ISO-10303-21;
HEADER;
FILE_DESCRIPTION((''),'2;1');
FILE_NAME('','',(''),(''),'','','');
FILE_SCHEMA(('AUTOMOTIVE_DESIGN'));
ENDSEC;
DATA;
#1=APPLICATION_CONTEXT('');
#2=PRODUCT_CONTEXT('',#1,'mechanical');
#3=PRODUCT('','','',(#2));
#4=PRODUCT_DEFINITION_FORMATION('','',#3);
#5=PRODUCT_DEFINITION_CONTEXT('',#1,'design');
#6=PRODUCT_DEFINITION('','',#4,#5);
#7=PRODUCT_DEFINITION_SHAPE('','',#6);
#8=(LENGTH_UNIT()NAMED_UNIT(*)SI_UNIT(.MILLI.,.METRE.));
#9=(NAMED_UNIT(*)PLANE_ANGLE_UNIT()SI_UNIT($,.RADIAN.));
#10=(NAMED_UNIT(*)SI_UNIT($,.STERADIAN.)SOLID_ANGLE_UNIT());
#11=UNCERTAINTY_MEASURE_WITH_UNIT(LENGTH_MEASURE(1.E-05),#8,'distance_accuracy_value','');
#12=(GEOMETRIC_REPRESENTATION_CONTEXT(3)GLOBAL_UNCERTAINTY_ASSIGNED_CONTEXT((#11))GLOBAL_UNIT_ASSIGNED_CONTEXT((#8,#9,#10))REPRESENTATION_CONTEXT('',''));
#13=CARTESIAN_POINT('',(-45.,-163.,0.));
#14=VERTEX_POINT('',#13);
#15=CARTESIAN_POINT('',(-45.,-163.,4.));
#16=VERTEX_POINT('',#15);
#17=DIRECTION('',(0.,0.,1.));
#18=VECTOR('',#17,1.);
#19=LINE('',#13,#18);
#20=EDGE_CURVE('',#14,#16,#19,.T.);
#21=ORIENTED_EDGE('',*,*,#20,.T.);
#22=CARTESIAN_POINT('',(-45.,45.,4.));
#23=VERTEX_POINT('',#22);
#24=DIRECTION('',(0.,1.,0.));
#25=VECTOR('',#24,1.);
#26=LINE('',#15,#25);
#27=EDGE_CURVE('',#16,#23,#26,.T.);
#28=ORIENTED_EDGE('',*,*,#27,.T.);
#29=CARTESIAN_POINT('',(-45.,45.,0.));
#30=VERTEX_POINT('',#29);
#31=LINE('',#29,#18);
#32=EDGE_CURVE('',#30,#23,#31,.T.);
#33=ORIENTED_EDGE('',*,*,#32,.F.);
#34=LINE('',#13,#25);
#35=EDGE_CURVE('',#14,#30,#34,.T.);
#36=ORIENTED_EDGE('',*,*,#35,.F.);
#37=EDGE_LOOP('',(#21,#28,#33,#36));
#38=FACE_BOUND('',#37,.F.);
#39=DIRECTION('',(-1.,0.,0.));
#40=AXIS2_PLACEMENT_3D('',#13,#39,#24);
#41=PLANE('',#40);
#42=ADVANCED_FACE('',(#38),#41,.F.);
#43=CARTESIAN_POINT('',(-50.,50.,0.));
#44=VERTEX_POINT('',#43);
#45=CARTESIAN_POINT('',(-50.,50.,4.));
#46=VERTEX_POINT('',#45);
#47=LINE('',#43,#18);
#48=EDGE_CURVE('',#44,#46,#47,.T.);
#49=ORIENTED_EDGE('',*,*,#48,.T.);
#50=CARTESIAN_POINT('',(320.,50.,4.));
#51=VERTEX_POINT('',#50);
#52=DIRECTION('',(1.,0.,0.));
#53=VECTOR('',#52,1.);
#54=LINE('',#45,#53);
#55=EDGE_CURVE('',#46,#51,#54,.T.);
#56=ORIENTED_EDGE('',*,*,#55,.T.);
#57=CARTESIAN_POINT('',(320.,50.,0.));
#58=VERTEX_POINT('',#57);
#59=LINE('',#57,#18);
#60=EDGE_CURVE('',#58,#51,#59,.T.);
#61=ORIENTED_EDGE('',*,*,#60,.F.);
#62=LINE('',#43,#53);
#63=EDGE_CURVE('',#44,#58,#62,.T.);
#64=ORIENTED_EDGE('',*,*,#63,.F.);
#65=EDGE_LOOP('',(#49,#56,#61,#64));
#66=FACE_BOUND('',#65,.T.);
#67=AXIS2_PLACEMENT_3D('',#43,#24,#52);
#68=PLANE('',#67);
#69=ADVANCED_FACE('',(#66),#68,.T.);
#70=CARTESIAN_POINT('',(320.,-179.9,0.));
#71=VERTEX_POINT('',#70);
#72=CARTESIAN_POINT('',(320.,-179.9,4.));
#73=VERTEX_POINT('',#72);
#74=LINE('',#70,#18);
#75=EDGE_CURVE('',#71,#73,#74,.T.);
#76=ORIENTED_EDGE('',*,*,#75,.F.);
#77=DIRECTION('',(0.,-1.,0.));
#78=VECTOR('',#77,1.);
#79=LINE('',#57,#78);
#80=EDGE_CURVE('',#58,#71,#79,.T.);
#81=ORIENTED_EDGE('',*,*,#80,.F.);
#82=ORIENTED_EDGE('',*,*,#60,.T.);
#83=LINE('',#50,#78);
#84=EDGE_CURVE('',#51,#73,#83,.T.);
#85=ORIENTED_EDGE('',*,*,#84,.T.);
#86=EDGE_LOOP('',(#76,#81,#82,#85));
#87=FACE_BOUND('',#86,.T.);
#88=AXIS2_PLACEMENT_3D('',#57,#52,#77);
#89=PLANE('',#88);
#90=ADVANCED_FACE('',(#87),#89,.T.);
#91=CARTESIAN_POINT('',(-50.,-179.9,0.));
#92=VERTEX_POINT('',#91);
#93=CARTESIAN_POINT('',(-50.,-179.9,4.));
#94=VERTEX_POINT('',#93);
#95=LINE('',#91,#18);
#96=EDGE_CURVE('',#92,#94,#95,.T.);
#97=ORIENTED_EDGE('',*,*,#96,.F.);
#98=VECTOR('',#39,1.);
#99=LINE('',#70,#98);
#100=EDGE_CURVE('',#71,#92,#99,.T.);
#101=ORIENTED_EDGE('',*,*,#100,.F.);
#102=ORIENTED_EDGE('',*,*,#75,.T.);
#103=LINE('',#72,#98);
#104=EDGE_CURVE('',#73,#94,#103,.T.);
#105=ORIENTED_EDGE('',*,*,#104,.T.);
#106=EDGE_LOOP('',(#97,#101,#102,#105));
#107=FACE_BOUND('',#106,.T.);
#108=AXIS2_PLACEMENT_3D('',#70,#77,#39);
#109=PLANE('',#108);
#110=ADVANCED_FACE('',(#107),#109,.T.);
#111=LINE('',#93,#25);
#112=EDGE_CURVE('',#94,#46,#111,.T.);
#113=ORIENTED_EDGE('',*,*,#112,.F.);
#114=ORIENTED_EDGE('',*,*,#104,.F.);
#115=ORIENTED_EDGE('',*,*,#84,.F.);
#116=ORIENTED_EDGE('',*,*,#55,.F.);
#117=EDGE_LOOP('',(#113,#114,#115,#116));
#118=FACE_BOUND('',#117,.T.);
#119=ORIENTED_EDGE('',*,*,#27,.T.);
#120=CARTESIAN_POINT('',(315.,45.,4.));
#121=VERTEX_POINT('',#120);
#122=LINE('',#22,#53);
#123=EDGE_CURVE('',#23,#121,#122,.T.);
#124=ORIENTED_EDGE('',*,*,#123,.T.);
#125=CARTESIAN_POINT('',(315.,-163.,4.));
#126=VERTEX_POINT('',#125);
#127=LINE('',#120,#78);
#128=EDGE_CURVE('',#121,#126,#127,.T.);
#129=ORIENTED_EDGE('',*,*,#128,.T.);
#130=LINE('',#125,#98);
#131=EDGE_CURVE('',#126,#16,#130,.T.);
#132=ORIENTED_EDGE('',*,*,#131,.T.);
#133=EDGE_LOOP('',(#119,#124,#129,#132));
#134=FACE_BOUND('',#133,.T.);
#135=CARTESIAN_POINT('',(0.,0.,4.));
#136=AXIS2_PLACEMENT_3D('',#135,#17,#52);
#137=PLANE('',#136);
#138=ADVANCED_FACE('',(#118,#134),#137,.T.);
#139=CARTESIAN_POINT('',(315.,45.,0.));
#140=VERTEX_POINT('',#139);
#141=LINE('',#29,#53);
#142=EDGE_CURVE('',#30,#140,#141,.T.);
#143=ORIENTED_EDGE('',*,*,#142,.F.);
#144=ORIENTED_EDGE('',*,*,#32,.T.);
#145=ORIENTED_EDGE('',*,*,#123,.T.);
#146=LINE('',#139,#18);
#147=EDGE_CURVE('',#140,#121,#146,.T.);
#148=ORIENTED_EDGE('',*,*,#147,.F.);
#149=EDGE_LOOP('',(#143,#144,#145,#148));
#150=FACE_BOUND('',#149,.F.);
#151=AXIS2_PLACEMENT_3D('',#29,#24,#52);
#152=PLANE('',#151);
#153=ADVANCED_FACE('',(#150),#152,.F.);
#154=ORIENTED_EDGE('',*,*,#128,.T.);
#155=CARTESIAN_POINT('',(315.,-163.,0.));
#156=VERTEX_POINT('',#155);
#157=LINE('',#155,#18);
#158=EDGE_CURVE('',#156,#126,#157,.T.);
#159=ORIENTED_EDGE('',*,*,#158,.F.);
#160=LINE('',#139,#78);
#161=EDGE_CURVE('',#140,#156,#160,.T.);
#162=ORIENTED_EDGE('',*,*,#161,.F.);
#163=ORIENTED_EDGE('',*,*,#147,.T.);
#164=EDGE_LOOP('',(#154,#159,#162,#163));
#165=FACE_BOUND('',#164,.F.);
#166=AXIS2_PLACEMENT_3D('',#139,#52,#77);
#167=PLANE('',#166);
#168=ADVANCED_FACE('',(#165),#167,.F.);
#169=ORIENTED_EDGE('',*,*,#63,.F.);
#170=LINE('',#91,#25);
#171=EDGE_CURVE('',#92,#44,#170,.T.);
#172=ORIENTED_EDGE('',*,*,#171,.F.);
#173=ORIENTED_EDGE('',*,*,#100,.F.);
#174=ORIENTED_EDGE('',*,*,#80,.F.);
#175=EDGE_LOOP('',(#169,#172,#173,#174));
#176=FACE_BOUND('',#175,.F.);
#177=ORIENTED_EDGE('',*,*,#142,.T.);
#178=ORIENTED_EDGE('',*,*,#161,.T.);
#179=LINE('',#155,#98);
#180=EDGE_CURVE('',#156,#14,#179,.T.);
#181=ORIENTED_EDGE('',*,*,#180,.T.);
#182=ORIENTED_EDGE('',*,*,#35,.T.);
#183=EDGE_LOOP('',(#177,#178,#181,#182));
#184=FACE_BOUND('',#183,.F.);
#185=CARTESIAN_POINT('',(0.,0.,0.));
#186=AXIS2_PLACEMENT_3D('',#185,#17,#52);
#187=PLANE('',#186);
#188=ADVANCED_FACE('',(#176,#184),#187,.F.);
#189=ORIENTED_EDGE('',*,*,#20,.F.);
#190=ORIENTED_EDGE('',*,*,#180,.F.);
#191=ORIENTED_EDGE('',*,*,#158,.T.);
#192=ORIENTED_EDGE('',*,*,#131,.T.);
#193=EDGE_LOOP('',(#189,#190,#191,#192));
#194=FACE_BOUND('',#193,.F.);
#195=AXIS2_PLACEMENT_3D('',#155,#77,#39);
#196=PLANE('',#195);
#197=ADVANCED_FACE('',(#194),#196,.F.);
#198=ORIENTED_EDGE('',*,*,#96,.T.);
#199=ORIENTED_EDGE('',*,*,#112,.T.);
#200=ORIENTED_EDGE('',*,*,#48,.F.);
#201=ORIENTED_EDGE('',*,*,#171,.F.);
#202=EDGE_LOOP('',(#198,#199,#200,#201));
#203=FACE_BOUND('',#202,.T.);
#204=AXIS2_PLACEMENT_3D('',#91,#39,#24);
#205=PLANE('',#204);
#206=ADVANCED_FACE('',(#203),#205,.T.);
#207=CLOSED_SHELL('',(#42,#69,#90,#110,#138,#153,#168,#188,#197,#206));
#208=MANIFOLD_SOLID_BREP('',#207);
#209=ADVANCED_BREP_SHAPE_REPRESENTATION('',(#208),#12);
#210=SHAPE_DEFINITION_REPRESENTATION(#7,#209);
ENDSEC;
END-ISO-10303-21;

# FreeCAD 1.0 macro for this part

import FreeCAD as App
import Part
import Sketcher

V = App.Vector

doc = App.newDocument("Part")
body = doc.addObject("PartDesign::Body", "Body")

# Sketch on XY plane
sketch1 = body.newObject("Sketcher::SketchObject", "Sketch")
sketch1.AttachmentSupport = (doc.getObject("XY_Plane"), [""])
sketch1.MapMode = "FlatFace"
sketch1.addGeometry([
    Part.LineSegment(V(320, 50, 0), V(-50, 50, 0)),  # 0
    Part.LineSegment(V(-50, 50, 0), V(-50, -180, 0)),  # 1
    Part.LineSegment(V(-50, -180, 0), V(320, -180, 0)),  # 2
    Part.LineSegment(V(320, -180, 0), V(320, 50, 0)),  # 3
    Part.LineSegment(V(-45, -163, 0), V(-45, 45, 0)),  # 4
    Part.LineSegment(V(-45, 45, 0), V(315, 45, 0)),  # 5
    Part.LineSegment(V(315, 45, 0), V(315, -163, 0)),  # 6
    Part.LineSegment(V(315, -163, 0), V(-45, -163, 0)),  # 7
], False)
sketch1.addConstraint([
    Sketcher.Constraint("Coincident", 0, 2, 1, 1),
    Sketcher.Constraint("Coincident", 1, 2, 2, 1),
    Sketcher.Constraint("Coincident", 2, 2, 3, 1),
    Sketcher.Constraint("Coincident", 3, 2, 0, 1),
    Sketcher.Constraint("Coincident", 4, 2, 5, 1),
    Sketcher.Constraint("Coincident", 5, 2, 6, 1),
    Sketcher.Constraint("Coincident", 6, 2, 7, 1),
    Sketcher.Constraint("Coincident", 7, 2, 4, 1),
    Sketcher.Constraint("Horizontal", 0),
    Sketcher.Constraint("Vertical", 1),
    Sketcher.Constraint("Horizontal", 2),
    Sketcher.Constraint("Vertical", 3),
    Sketcher.Constraint("Vertical", 4),
    Sketcher.Constraint("Horizontal", 5),
    Sketcher.Constraint("Vertical", 6),
    Sketcher.Constraint("Horizontal", 7),
    Sketcher.Constraint("DistanceX", 0, 2, 0, 1, 370.0),
    Sketcher.Constraint("DistanceX", 5, 1, 5, 2, 360.0),
    Sketcher.Constraint("DistanceY", 4, 1, 4, 2, 208.0),
    Sketcher.Constraint("DistanceY", 1, 2, 1, 1, 229.9),
    Sketcher.Constraint("DistanceX", 0, 2, 4, 2, 5.0),
    Sketcher.Constraint("DistanceY", 4, 2, 0, 2, 5.0),
    Sketcher.Constraint("DistanceX", 0, 2, -1, 1, 50.0),
    Sketcher.Constraint("DistanceY", -1, 1, 0, 2, 50.0),
])
pad1 = body.newObject("PartDesign::Pad", "Pad")
pad1.Profile = sketch1
pad1.Length = 4

doc.recompute()
